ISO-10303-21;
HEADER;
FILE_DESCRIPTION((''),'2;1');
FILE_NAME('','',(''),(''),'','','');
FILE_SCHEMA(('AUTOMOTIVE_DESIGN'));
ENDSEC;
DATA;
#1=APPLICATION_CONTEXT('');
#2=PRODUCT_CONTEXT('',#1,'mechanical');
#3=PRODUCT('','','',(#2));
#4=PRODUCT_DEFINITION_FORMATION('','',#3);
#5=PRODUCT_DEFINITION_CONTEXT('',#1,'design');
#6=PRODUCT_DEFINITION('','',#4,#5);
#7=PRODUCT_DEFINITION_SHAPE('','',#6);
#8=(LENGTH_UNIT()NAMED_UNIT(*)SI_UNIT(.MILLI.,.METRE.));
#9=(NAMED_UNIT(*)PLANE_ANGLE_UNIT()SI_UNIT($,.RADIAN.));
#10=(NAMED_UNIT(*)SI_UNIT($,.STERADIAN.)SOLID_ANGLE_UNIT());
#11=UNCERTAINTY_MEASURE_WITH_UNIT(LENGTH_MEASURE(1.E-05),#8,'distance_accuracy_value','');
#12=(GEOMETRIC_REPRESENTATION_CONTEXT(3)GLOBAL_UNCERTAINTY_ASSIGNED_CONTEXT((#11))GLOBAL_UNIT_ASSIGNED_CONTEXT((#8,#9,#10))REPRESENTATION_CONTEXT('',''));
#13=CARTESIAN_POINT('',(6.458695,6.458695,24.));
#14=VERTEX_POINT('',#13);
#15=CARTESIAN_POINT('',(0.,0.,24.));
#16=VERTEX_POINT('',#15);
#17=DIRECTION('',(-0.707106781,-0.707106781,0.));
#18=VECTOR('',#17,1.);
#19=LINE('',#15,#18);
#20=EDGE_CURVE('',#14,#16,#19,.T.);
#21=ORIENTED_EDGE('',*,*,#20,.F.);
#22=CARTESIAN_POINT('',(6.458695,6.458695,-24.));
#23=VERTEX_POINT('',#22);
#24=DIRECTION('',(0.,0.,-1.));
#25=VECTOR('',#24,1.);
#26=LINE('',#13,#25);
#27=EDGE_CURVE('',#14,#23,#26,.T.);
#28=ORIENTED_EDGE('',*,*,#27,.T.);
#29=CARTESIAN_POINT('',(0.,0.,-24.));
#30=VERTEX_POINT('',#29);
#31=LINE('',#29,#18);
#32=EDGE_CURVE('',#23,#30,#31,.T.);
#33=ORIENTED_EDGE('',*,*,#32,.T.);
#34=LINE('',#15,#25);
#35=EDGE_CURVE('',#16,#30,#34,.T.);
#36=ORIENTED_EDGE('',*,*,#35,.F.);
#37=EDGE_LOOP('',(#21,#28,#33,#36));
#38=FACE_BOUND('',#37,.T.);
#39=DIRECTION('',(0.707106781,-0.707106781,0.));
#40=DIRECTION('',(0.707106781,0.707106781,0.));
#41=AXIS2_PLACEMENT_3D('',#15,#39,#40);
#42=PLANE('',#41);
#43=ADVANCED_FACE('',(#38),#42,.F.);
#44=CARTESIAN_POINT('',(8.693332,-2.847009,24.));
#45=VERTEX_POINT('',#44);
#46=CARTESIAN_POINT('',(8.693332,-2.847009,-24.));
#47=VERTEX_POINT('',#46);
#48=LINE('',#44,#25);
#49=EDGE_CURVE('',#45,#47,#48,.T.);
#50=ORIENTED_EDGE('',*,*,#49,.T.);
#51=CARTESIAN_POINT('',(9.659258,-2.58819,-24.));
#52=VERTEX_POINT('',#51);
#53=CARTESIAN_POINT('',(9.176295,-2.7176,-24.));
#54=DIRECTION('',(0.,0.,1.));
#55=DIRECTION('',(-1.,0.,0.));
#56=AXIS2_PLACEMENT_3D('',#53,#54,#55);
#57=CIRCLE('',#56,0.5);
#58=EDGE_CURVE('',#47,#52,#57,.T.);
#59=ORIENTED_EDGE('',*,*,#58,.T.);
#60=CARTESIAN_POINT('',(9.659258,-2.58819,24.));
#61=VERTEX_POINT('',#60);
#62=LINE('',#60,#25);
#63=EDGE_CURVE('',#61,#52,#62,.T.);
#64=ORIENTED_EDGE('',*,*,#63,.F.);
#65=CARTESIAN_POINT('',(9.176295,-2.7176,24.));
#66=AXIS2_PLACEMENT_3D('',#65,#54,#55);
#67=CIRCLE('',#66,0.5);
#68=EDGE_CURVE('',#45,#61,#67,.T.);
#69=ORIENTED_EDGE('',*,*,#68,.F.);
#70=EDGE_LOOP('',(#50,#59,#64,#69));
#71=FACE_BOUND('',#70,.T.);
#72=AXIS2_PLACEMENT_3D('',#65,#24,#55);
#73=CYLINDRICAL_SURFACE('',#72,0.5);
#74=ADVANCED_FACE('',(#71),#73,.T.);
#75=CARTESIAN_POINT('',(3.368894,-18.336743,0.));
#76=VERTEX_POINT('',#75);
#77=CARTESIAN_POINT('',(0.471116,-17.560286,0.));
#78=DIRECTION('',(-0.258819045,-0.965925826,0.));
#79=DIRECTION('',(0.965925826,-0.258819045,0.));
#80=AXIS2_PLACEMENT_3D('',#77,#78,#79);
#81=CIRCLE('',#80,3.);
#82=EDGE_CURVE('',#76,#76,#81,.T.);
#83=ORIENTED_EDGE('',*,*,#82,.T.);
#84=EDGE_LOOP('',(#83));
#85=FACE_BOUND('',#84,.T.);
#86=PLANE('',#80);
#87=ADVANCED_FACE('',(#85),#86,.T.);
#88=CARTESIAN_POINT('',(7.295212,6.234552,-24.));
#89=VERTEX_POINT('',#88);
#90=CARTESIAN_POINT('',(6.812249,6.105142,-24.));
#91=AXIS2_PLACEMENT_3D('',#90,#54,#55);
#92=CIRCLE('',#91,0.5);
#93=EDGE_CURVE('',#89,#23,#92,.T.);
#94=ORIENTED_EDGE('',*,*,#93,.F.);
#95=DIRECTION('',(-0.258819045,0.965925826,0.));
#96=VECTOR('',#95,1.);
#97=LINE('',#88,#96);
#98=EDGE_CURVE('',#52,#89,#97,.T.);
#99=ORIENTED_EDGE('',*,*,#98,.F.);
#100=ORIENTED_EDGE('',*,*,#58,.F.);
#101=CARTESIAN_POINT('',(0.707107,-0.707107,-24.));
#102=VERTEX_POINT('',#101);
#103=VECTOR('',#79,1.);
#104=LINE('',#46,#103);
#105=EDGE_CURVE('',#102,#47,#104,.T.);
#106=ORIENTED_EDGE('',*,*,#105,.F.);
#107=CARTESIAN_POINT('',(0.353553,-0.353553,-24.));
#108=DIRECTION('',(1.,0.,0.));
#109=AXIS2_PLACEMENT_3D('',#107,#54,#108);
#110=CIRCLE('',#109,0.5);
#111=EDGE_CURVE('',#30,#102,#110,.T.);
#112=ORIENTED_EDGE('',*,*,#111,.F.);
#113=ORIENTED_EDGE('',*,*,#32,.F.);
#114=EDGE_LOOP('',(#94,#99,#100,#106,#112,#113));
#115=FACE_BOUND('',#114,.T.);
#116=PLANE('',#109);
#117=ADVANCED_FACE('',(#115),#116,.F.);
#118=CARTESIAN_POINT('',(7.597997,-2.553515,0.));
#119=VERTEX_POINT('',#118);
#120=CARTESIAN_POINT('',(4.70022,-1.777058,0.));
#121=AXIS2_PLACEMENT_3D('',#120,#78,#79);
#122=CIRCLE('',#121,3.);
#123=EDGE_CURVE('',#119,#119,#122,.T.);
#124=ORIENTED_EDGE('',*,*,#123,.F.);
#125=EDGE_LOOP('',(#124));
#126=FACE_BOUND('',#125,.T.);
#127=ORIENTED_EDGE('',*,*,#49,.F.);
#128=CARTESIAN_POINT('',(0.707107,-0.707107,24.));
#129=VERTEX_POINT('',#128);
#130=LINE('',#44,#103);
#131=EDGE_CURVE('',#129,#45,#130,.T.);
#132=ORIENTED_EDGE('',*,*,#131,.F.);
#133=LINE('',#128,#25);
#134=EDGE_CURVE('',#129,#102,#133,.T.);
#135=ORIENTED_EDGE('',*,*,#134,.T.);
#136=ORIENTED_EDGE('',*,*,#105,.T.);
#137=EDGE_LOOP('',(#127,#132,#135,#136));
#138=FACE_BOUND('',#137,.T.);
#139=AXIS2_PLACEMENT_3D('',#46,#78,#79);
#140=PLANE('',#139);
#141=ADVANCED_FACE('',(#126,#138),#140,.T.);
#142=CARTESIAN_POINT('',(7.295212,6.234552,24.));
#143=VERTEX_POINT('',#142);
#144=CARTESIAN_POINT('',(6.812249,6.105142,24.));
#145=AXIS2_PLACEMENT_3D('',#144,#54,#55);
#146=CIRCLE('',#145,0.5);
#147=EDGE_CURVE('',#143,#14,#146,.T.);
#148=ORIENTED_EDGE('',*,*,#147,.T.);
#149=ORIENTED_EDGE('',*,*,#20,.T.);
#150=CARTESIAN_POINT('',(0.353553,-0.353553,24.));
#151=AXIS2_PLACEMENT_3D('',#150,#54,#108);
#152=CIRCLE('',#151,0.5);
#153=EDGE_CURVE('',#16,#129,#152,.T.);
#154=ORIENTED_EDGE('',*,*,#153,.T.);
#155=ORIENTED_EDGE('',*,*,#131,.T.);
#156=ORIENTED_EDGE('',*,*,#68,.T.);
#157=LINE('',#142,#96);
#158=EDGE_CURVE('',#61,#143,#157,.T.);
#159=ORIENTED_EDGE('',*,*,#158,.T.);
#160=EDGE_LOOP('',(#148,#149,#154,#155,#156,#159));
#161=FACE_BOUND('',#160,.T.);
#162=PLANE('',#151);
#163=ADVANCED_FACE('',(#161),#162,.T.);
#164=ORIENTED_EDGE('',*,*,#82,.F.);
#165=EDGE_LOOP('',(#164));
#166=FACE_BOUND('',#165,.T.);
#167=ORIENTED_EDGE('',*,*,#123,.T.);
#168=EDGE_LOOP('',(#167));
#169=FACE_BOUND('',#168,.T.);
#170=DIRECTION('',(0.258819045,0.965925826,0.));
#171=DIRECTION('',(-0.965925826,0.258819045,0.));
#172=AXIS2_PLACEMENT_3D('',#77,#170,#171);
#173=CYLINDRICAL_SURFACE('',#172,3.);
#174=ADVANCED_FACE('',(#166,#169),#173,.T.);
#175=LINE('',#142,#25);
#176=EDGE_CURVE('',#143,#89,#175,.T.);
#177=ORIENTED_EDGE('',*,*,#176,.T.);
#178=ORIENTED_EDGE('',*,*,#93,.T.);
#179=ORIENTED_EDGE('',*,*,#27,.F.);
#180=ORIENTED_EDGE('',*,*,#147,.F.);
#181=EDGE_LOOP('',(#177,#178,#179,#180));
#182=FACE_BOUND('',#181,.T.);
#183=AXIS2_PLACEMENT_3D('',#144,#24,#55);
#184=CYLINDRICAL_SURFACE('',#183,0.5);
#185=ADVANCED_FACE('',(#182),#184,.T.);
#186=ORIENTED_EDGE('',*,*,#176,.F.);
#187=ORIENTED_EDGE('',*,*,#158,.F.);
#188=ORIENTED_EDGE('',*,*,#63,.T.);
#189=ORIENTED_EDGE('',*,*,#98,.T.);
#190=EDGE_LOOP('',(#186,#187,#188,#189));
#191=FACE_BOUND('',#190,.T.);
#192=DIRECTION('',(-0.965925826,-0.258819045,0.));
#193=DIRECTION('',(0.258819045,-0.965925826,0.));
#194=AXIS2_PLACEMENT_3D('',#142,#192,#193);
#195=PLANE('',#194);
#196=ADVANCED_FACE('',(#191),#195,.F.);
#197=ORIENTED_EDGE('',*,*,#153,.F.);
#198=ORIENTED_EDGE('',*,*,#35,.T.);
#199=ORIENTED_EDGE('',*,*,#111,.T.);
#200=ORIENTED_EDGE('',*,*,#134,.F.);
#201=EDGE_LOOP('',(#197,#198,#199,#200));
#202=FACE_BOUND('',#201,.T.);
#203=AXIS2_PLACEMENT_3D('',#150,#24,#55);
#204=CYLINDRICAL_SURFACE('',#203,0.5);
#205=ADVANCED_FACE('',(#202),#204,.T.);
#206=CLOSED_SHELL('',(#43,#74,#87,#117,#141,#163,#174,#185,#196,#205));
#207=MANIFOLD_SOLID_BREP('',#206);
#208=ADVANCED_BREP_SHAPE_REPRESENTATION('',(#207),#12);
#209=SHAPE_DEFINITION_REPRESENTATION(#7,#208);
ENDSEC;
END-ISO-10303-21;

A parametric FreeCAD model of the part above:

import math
import FreeCAD as App
import Part
import Sketcher

V = App.Vector
Q = App.Units.Quantity

doc = App.newDocument("Part")
body = doc.addObject("PartDesign::Body", "Body")

# Sketch on XY plane
sketch1 = body.newObject("Sketcher::SketchObject", "Sketch")
sketch1.AttachmentSupport = (doc.getObject("XY_Plane"), [""])
sketch1.MapMode = "FlatFace"
sketch1.addGeometry(Part.LineSegment(V(6.458695, 6.458695, 0), V(0, 0, 0)), False)
sketch1.addGeometry(Part.ArcOfCircle(Part.Circle(V(0.353553, -0.353553, 0), V(0, 0, 1), 0.5), math.radians(135), math.radians(315)), False)
sketch1.addGeometry(Part.LineSegment(V(0.707107, -0.707107, 0), V(5.941057, 4.526844, 0)), False)
sketch1.addGeometry(Part.ArcOfCircle(Part.Circle(V(6.294611, 4.17329, 0), V(0, 0, 1), 0.5), math.radians(15), math.radians(135)), False)
sketch1.addGeometry(Part.LineSegment(V(6.777574, 4.3027, 0), V(8.693332, -2.847009, 0)), False)
sketch1.addGeometry(Part.ArcOfCircle(Part.Circle(V(9.176295, -2.7176, 0), V(0, 0, 1), 0.5), math.radians(-165), math.radians(15)), False)
sketch1.addGeometry(Part.LineSegment(V(9.659258, -2.58819, 0), V(7.295212, 6.234552, 0)), False)
sketch1.addGeometry(Part.ArcOfCircle(Part.Circle(V(6.812249, 6.105142, 0), V(0, 0, 1), 0.5), math.radians(15), math.radians(135)), False)
sketch1.addConstraint(Sketcher.Constraint("Tangent", 0, 2, 1, 1))
sketch1.addConstraint(Sketcher.Constraint("Tangent", 1, 2, 2, 1))
sketch1.addConstraint(Sketcher.Constraint("Tangent", 2, 2, 3, 2))
sketch1.addConstraint(Sketcher.Constraint("Tangent", 3, 1, 4, 1))
sketch1.addConstraint(Sketcher.Constraint("Tangent", 4, 2, 5, 1))
sketch1.addConstraint(Sketcher.Constraint("Tangent", 5, 2, 6, 1))
sketch1.addConstraint(Sketcher.Constraint("Tangent", 6, 2, 7, 1))
sketch1.addConstraint(Sketcher.Constraint("Tangent", 7, 2, 0, 1))
sketch1.addConstraint(Sketcher.Constraint("Coincident", 0, 2, -1, 1))
sketch1.addConstraint(Sketcher.Constraint("Equal", 1, 3))
sketch1.addConstraint(Sketcher.Constraint("Equal", 3, 5))
sketch1.addConstraint(Sketcher.Constraint("Equal", 5, 7))
sketch1.addConstraint(Sketcher.Constraint("Parallel", 0, 2))
sketch1.addConstraint(Sketcher.Constraint("Parallel", 4, 6))
sketch1.addConstraint(Sketcher.Constraint("Equal", 2, 4))
sketch1.addConstraint(Sketcher.Constraint("Radius", 1, 0.5))
sketch1.addConstraint(Sketcher.Constraint("Angle", 0, Q("-135 deg")))
sketch1.addConstraint(Sketcher.Constraint("Angle", 4, Q("-75 deg")))
sketch1.addConstraint(Sketcher.Constraint("DistanceY", 5, 3, -1, 1, 2.7176))
pad1 = body.newObject("PartDesign::Pad", "Pad")
pad1.Profile = sketch1
pad1.Length = 48
pad1.Midplane = True

# Sketch on XY plane
sketch2 = body.newObject("Sketcher::SketchObject", "Sketch001")
sketch2.AttachmentSupport = (doc.getObject("XY_Plane"), [""])
sketch2.MapMode = "FlatFace"
sketch2.AttachmentOffset = App.Placement(V(0, 0, 24), App.Rotation())
sketch2.addGeometry(Part.LineSegment(V(5.941057, 4.526844, 0), V(0.707107, -0.707107, 0)), False)
sketch2.addGeometry(Part.LineSegment(V(0.707107, -0.707107, 0), V(8.693332, -2.847009, 0)), False)
sketch2.addGeometry(Part.LineSegment(V(8.693332, -2.847009, 0), V(6.777574, 4.3027, 0)), False)
sketch2.addGeometry(Part.ArcOfCircle(Part.Circle(V(6.294611, 4.17329, 0), V(0, 0, 1), 0.5), math.radians(15), math.radians(135)), False)
sketch2.addConstraint(Sketcher.Constraint("Coincident", 0, 2, 1, 1))
sketch2.addConstraint(Sketcher.Constraint("Coincident", 1, 2, 2, 1))
sketch2.addConstraint(Sketcher.Constraint("Tangent", 2, 2, 3, 1))
sketch2.addConstraint(Sketcher.Constraint("Tangent", 3, 2, 0, 1))
sketch2.addConstraint(Sketcher.Constraint("Equal", 0, 2))
sketch2.addConstraint(Sketcher.Constraint("Radius", 3, 0.5))
sketch2.addConstraint(Sketcher.Constraint("Angle", 0, Q("-135 deg")))
sketch2.addConstraint(Sketcher.Constraint("Angle", 1, Q("-15 deg")))
sketch2.addConstraint(Sketcher.Constraint("DistanceY", -1, 1, 2, 2, 4.3027))
sketch2.addConstraint(Sketcher.Constraint("DistanceY", 1, 2, 3, 3, 7.0203))
sketch2.addConstraint(Sketcher.Constraint("DistanceX", -1, 1, 3, 3, 6.294611))
pad2 = body.newObject("PartDesign::Pad", "Pad001")
pad2.Profile = sketch2
pad2.Length = 48
pad2.Reversed = True

# Sketch on an angled plane
sketch3 = body.newObject("Sketcher::SketchObject", "Sketch002")
sketch3.Placement = App.Placement(V(-0.12941, -0.482963, 0), App.Rotation(V(0.965925826, -0.258819045, 0), V(0, 0, 0.999999999), V(-0.258819045, -0.965925826, 0), "ZXY"))
sketch3.addGeometry(Part.Circle(V(5, 0, 0), V(0, 0, 1), 3), False)
sketch3.addConstraint(Sketcher.Constraint("PointOnObject", 0, 3, -1))
sketch3.addConstraint(Sketcher.Constraint("Diameter", 0, 6.0))
sketch3.addConstraint(Sketcher.Constraint("DistanceX", -1, 1, 0, 3, 5.0))
pad3 = body.newObject("PartDesign::Pad", "Pad002")
pad3.Profile = sketch3
pad3.Length = 16.34

doc.recompute()
